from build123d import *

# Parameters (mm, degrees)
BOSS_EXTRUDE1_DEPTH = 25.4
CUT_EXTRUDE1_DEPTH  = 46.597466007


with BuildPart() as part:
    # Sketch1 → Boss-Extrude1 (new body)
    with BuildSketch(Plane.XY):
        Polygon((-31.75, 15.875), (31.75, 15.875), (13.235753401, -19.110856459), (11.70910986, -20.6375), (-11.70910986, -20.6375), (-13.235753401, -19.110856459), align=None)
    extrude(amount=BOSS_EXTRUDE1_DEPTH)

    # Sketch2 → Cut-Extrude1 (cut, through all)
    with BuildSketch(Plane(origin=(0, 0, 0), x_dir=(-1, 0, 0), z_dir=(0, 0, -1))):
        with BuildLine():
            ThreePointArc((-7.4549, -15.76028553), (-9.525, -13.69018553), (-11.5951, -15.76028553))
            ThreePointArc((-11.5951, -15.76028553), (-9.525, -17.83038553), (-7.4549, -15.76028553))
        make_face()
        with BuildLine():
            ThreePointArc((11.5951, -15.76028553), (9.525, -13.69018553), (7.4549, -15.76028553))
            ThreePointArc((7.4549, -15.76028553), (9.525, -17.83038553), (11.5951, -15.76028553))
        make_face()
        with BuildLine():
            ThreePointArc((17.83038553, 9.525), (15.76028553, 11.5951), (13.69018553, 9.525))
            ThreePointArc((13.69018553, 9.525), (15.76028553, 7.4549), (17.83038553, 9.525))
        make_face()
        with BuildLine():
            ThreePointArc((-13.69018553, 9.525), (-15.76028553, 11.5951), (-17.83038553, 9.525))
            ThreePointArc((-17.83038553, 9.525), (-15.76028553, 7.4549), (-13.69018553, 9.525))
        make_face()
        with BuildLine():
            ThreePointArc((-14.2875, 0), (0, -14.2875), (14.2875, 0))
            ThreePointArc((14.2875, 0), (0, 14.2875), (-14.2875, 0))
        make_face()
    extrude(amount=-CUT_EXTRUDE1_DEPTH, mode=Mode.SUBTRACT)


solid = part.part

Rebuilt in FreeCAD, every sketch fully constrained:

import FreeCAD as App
import Part
import Sketcher
from FreeCAD import Vector
Q = App.Units.Quantity


def add_polygon(sketch, points):
    """Adds a closed chain of lines whose ends are joined by coincident constraints."""
    first, n = sketch.GeometryCount, len(points)
    for a, b in zip(points, points[1:] + points[:1]):
        sketch.addGeometry(Part.LineSegment(App.Vector(*a, 0), App.Vector(*b, 0)), False)
    for i in range(n):
        sketch.addConstraint(Sketcher.Constraint("Coincident", first + i, 2, first + (i + 1) % n, 1))

doc = App.newDocument("Part")
body = doc.addObject("PartDesign::Body", "Body")

sketch1 = body.newObject("Sketcher::SketchObject", "Sketch")
sketch1.AttachmentSupport = (doc.getObject("XY_Plane"), [""])
sketch1.MapMode = "FlatFace"
add_polygon(sketch1, [(31.8, 15.9), (-31.8, 15.9), (-13.2, -19.1), (-11.7, -20.6), (11.7, -20.6), (13.2, -19.1)])
sketch1.addConstraint([
    Sketcher.Constraint("Horizontal", 0),
    Sketcher.Constraint("Horizontal", 3),
    Sketcher.Constraint("Symmetric", 1, 2, 4, 2, -2),
    Sketcher.Constraint("Perpendicular", 2, 4),
    Sketcher.Constraint("Equal", 2, 4),
    Sketcher.Constraint("Equal", 1, 5),
    Sketcher.Constraint("DistanceX", 0, 2, 0, 1, Q("2.5 in")),
    Sketcher.Constraint("Distance", 2, Q("0.085 in")),
    Sketcher.Constraint("DistanceY", -1, 1, 0, 2, Q("0.625 in")),
    Sketcher.Constraint("DistanceY", 2, 2, -1, 1, Q("0.8125 in")),
    Sketcher.Constraint("DistanceX", 3, 1, 3, 2, Q("23.41822 mm")),
])
pad1 = body.newObject("PartDesign::Pad", "Pad")
pad1.Profile = sketch1
pad1.Length = Q("1 in")

sketch2 = body.newObject("Sketcher::SketchObject", "Sketch001")
sketch2.AttachmentSupport = (doc.getObject("XY_Plane"), [""])
sketch2.MapMode = "FlatFace"
sketch2.addGeometry([
    Part.Circle(Vector(9.5, -15.8, 0), Vector(0, 0, 1), 2.1),
    Part.Circle(Vector(-9.5, -15.8, 0), Vector(0, 0, 1), 2.1),
    Part.Circle(Vector(-15.8, 9.5, 0), Vector(0, 0, 1), 2.1),
    Part.Circle(Vector(15.8, 9.5, 0), Vector(0, 0, 1), 2.1),
    Part.Circle(Vector(0, 0, 0), Vector(0, 0, 1), 14.3),
], False)
sketch2.addConstraint([
    Sketcher.Constraint("Coincident", 4, 3, -1, 1),
    Sketcher.Constraint("Equal", 0, 1),
    Sketcher.Constraint("Equal", 1, 2),
    Sketcher.Constraint("Equal", 2, 3),
    Sketcher.Constraint("Symmetric", 0, 3, 1, 3, -2),
    Sketcher.Constraint("Symmetric", 2, 3, 3, 3, -2),
    Sketcher.Constraint("Diameter", 0, Q("0.163 in")),
    Sketcher.Constraint("Diameter", 4, Q("1.125 in")),
    Sketcher.Constraint("DistanceX", 1, 3, 0, 3, Q("0.75 in")),
    Sketcher.Constraint("DistanceY", -1, 1, 2, 3, Q("0.375 in")),
    Sketcher.Constraint("DistanceX", 2, 3, 3, 3, Q("31.520571 mm")),
    Sketcher.Constraint("DistanceY", 0, 3, -1, 1, Q("15.760286 mm")),
])
pocket1 = body.newObject("PartDesign::Pocket", "Pocket")
pocket1.Profile = sketch2
pocket1.Type = "ThroughAll"
pocket1.Reversed = True

doc.recompute()
